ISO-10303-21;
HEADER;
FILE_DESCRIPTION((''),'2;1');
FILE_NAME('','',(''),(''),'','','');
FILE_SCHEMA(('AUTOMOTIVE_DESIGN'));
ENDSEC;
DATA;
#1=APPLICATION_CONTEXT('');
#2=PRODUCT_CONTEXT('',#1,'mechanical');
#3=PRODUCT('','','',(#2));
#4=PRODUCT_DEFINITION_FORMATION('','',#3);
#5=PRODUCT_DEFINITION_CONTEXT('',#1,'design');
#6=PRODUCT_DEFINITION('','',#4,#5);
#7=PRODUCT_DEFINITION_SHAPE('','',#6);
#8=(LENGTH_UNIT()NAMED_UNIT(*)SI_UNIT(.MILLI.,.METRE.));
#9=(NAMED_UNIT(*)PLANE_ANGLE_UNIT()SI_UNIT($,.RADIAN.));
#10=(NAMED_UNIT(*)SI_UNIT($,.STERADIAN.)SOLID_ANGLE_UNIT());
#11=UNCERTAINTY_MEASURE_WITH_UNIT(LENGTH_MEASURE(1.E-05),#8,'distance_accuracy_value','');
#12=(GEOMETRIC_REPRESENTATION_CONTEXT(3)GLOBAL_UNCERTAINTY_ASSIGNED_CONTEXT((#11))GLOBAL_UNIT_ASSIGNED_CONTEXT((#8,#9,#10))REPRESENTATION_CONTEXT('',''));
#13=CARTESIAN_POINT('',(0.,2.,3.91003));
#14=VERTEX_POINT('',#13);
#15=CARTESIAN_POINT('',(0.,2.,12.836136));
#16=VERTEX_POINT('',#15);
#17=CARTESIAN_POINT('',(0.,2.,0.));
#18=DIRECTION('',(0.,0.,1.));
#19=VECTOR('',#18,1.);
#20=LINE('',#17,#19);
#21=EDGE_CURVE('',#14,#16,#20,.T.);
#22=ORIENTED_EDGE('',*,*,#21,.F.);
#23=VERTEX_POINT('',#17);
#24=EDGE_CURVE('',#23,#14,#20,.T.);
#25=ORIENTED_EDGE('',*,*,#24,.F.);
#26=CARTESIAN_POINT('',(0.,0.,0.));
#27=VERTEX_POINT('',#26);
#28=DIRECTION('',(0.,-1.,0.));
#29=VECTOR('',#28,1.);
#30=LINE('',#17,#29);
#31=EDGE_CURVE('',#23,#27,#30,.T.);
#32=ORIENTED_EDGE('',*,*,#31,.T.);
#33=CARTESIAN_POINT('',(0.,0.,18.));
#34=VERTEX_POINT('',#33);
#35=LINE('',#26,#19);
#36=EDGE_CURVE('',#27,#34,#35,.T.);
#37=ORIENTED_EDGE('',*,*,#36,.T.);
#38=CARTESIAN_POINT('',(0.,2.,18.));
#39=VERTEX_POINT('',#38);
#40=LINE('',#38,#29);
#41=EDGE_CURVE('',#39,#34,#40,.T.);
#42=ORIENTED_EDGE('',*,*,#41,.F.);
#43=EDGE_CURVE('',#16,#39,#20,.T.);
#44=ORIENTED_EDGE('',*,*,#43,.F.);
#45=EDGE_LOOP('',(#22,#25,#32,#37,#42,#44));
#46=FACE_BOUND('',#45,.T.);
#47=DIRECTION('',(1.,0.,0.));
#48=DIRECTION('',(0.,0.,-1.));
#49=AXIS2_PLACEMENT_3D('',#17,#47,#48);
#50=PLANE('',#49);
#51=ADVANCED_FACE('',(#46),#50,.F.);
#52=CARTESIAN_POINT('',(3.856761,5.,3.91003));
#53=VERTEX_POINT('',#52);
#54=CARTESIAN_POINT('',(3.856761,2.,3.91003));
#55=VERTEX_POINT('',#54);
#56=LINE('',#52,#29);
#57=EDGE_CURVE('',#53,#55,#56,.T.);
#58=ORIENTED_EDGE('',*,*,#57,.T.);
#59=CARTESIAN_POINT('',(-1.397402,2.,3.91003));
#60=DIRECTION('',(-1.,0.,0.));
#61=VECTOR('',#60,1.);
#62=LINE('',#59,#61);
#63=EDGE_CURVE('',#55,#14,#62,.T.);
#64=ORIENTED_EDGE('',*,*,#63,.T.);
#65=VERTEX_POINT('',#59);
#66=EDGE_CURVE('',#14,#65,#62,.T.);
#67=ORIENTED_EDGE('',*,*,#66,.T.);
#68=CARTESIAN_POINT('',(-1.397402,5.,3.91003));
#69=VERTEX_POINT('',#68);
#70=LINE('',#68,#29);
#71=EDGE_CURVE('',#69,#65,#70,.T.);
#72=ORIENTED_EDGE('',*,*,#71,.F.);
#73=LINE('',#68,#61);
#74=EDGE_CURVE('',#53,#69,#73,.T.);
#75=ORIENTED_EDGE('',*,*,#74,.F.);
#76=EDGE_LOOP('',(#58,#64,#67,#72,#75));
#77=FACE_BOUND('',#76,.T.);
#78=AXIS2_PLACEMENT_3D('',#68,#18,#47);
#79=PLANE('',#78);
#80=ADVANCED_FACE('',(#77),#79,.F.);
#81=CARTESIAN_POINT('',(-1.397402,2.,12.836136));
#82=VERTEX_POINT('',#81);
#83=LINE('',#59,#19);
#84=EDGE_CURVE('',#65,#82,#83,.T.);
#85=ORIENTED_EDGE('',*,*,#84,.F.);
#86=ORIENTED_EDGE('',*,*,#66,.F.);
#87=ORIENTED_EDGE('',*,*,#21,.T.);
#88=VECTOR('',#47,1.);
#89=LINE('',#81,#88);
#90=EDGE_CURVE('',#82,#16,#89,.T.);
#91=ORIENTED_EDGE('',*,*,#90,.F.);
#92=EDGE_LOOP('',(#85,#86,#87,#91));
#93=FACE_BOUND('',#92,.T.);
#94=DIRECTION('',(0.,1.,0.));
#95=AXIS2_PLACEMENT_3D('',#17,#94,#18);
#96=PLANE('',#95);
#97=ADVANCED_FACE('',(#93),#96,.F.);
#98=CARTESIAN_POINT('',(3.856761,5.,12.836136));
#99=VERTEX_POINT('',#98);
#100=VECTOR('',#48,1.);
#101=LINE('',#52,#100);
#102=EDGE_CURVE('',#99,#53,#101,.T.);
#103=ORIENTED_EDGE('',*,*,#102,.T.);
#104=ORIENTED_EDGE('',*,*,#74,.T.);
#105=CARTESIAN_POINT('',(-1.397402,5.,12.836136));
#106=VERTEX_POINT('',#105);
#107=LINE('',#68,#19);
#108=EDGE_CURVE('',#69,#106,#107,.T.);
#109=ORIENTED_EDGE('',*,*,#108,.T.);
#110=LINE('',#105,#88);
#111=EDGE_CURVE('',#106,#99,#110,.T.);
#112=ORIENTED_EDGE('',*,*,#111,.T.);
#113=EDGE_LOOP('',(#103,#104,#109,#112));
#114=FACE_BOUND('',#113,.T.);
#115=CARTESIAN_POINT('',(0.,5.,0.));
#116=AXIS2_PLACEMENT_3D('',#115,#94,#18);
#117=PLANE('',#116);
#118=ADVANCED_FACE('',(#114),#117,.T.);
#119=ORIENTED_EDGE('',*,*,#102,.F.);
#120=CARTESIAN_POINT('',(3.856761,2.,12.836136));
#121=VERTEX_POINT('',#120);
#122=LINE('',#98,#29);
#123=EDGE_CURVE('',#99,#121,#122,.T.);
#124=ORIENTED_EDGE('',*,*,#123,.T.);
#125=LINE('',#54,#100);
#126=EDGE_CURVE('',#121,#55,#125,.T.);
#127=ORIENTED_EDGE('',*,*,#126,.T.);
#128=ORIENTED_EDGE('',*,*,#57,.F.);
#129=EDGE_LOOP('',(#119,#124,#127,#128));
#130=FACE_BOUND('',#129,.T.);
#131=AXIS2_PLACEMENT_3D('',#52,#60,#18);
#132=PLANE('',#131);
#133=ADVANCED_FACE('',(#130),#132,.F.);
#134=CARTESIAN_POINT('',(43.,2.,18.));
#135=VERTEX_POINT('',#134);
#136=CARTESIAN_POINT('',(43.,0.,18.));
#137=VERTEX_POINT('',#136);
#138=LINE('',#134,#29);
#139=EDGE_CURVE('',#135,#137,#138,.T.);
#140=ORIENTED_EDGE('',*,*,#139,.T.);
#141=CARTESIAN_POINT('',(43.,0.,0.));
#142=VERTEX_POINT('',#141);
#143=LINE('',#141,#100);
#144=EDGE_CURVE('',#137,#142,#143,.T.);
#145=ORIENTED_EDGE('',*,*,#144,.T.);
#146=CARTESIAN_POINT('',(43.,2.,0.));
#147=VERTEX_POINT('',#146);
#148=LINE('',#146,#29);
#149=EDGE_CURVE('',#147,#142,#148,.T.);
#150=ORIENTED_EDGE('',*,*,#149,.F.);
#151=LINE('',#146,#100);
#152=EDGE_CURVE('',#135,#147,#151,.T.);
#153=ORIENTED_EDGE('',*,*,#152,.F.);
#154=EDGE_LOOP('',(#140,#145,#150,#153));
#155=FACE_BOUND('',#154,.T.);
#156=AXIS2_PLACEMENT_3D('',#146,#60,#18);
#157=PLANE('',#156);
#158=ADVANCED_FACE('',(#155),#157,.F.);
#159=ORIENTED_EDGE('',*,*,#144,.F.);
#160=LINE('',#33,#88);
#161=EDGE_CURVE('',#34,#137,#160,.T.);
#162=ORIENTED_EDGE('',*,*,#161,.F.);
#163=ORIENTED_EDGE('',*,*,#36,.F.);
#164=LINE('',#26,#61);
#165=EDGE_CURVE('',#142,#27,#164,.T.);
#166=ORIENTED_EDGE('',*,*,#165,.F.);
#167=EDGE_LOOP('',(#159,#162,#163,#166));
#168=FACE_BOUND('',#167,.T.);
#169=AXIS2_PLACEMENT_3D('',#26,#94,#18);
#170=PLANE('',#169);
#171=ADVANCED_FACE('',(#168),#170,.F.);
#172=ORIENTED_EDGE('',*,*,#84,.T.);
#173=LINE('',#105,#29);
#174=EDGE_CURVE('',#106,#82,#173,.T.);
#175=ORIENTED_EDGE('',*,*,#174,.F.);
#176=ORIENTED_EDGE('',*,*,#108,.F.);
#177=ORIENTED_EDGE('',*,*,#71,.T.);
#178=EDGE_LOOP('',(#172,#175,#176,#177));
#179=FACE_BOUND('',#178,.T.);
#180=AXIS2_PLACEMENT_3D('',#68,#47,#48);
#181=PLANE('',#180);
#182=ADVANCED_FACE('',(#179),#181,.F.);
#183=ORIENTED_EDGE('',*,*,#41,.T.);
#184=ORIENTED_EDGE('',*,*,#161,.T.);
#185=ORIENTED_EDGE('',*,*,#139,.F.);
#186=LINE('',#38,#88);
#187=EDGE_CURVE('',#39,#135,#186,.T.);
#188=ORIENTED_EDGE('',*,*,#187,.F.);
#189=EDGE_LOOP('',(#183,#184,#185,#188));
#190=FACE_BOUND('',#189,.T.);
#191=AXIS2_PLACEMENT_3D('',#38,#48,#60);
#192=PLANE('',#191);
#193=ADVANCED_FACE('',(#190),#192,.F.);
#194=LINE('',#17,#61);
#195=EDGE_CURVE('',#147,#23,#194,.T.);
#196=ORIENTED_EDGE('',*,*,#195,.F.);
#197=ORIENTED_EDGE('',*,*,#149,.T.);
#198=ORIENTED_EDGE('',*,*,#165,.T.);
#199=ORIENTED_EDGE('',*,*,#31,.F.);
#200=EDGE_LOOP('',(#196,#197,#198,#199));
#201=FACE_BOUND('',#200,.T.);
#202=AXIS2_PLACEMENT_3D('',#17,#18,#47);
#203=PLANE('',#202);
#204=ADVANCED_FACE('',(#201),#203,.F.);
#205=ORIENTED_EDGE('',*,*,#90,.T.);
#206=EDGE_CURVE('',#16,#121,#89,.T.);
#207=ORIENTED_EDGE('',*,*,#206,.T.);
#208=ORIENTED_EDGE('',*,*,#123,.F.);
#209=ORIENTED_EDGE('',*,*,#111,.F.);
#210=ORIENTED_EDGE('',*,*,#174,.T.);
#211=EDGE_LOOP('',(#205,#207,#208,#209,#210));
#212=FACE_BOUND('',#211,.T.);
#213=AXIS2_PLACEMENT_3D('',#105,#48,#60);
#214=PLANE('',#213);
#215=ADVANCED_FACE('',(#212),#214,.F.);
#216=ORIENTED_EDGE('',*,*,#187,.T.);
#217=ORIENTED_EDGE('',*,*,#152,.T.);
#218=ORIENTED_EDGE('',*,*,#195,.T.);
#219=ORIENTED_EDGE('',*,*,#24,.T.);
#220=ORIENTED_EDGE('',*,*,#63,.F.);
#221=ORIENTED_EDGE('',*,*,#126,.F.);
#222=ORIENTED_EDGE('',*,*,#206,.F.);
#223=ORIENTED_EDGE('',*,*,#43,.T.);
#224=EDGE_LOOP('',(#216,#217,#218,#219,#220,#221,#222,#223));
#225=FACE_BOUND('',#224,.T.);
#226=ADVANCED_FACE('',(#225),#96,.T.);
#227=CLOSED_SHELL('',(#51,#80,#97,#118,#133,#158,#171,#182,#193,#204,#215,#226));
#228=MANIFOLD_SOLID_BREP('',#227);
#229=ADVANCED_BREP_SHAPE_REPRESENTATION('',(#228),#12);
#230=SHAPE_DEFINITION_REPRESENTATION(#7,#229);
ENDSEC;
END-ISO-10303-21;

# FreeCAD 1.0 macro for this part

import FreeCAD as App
import Part
import Sketcher


def add_polygon(sketch, points):
    """Adds a closed chain of lines whose ends are joined by coincident constraints."""
    first, n = sketch.GeometryCount, len(points)
    for a, b in zip(points, points[1:] + points[:1]):
        sketch.addGeometry(Part.LineSegment(App.Vector(*a, 0), App.Vector(*b, 0)), False)
    for i in range(n):
        sketch.addConstraint(Sketcher.Constraint("Coincident", first + i, 2, first + (i + 1) % n, 1))

doc = App.newDocument("Part")
body = doc.addObject("PartDesign::Body", "Body")

sketch1 = body.newObject("Sketcher::SketchObject", "Sketch")
sketch1.AttachmentSupport = (doc.getObject("XZ_Plane"), [""])
sketch1.MapMode = "FlatFace"
add_polygon(sketch1, [(0, 0), (0, 18), (43, 18), (43, 0)])
sketch1.addConstraint(Sketcher.Constraint("Vertical", 0))
sketch1.addConstraint(Sketcher.Constraint("Horizontal", 1))
sketch1.addConstraint(Sketcher.Constraint("Vertical", 2))
sketch1.addConstraint(Sketcher.Constraint("Horizontal", 3))
sketch1.addConstraint(Sketcher.Constraint("Coincident", 3, 2, -1, 1))
sketch1.addConstraint(Sketcher.Constraint("DistanceX", 1, 1, 1, 2, 43.0))
sketch1.addConstraint(Sketcher.Constraint("DistanceY", 0, 1, 0, 2, 18.0))
pad1 = body.newObject("PartDesign::Pad", "Pad")
pad1.Profile = sketch1
pad1.Length = 2
pad1.Reversed = True

sketch2 = body.newObject("Sketcher::SketchObject", "Sketch001")
sketch2.AttachmentSupport = (doc.getObject("XZ_Plane"), [""])
sketch2.MapMode = "FlatFace"
sketch2.AttachmentOffset = App.Placement(App.Vector(0, 0, -2), App.Rotation())
add_polygon(sketch2, [(-1.397402, 3.91003), (-1.397402, 12.836136), (3.856761, 12.836136), (3.856761, 3.91003)])
sketch2.addConstraint(Sketcher.Constraint("Vertical", 0))
sketch2.addConstraint(Sketcher.Constraint("Horizontal", 1))
sketch2.addConstraint(Sketcher.Constraint("Vertical", 2))
sketch2.addConstraint(Sketcher.Constraint("Horizontal", 3))
sketch2.addConstraint(Sketcher.Constraint("DistanceX", 0, 2, -1, 1, 1.397402))
sketch2.addConstraint(Sketcher.Constraint("DistanceX", 1, 1, 1, 2, 5.254163))
sketch2.addConstraint(Sketcher.Constraint("DistanceY", 0, 1, 0, 2, 8.926106))
sketch2.addConstraint(Sketcher.Constraint("DistanceY", -1, 1, 2, 2, 3.91003))
pad2 = body.newObject("PartDesign::Pad", "Pad001")
pad2.Profile = sketch2
pad2.Length = 3
pad2.Reversed = True

doc.recompute()
